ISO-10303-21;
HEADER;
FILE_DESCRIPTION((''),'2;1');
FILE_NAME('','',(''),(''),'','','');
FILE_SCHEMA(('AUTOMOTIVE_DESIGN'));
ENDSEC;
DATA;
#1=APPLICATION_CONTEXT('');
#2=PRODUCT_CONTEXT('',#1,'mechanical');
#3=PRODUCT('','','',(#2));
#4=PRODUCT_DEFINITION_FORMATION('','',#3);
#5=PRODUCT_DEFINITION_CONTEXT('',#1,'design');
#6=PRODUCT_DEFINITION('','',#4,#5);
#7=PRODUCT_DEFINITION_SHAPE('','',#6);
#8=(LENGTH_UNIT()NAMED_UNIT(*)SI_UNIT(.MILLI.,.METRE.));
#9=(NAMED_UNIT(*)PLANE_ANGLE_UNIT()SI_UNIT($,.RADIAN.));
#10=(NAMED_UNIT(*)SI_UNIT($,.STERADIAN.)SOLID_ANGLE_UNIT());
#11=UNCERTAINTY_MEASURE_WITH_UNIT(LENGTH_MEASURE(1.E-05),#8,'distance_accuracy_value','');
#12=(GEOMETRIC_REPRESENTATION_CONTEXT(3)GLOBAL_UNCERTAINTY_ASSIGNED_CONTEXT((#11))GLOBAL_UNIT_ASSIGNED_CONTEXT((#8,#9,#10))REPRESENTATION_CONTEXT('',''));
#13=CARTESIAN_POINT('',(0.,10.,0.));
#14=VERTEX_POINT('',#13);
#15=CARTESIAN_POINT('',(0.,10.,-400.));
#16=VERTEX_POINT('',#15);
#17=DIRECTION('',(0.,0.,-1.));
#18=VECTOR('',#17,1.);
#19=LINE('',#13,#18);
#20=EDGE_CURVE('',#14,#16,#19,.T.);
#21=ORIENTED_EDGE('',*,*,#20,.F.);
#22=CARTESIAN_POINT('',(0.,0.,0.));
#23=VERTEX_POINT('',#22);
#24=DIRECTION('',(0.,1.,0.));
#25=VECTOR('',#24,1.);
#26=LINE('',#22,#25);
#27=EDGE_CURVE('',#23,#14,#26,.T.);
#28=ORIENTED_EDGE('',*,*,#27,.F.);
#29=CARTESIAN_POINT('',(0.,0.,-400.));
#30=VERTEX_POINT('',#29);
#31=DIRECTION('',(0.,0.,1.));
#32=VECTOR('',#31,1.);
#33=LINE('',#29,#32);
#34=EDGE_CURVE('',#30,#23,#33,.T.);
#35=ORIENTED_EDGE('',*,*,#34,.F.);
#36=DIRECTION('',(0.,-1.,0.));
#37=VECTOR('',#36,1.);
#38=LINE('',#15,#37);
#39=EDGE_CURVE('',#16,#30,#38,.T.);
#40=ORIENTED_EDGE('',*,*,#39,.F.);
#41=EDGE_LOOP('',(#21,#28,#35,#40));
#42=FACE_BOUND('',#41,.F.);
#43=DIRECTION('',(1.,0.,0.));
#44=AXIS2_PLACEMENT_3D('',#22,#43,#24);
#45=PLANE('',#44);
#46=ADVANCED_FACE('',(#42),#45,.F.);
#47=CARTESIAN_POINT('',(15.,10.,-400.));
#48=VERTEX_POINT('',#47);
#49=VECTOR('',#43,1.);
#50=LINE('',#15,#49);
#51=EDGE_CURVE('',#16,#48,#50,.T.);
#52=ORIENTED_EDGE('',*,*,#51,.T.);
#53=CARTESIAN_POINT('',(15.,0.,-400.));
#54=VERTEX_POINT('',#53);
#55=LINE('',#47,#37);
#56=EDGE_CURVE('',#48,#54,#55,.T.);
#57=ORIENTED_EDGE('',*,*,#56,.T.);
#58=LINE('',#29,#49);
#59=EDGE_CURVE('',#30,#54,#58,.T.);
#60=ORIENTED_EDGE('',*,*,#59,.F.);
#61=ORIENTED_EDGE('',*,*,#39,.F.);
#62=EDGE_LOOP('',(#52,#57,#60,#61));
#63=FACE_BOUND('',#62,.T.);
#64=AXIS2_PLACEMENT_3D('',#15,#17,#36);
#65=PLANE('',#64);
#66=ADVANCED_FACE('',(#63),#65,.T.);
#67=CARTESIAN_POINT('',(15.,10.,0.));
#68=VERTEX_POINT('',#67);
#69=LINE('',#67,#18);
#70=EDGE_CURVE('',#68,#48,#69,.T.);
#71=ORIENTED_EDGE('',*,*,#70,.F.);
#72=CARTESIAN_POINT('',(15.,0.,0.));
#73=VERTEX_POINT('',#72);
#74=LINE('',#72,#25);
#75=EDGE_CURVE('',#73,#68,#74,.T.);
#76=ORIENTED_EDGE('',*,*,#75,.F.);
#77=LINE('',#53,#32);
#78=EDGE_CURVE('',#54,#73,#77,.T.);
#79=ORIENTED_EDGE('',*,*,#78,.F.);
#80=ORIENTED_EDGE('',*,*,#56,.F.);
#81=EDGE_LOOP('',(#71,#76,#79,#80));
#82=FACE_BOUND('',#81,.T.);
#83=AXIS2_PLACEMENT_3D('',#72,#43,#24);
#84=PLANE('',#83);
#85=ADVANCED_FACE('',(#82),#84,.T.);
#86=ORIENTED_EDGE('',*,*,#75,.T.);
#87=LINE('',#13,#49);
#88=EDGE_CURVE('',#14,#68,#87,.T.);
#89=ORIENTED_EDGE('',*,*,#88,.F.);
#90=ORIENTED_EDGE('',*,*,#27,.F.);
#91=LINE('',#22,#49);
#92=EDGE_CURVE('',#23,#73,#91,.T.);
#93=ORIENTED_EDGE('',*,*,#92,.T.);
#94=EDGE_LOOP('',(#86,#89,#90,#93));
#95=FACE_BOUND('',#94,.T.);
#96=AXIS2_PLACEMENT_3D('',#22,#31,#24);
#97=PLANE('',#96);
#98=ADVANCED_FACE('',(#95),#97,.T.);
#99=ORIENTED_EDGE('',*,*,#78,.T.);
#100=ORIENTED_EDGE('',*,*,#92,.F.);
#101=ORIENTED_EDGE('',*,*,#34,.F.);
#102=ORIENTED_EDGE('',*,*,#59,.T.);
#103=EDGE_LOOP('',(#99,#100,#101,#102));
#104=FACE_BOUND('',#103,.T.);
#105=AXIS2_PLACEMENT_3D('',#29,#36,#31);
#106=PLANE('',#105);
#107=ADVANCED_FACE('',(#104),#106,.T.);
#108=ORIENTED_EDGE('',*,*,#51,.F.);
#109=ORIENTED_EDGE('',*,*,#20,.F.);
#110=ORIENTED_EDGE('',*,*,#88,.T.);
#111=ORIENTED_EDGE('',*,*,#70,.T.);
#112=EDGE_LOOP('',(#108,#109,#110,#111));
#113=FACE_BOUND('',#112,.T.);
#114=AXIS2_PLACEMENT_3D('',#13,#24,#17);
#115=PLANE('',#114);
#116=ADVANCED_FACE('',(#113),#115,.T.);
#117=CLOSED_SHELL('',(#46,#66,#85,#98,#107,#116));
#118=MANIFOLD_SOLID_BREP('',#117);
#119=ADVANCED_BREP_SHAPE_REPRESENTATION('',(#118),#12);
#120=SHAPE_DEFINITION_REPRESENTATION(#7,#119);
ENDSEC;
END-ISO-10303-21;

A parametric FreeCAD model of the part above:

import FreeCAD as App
import Part
import Sketcher

V = App.Vector
Q = App.Units.Quantity

doc = App.newDocument("Part")
body = doc.addObject("PartDesign::Body", "Body")

# Sketch on YZ plane
sketch1 = body.newObject("Sketcher::SketchObject", "Sketch")
sketch1.AttachmentSupport = (doc.getObject("YZ_Plane"), [""])
sketch1.MapMode = "FlatFace"
sketch1.addGeometry([
    Part.LineSegment(V(10, 0, 0), V(0, 0, 0)),
    Part.LineSegment(V(0, 0, 0), V(0, -400, 0)),
    Part.LineSegment(V(0, -400, 0), V(10, -400, 0)),
    Part.LineSegment(V(10, -400, 0), V(10, 0, 0)),
], False)
sketch1.addConstraint([
    Sketcher.Constraint("Coincident", 0, 2, 1, 1),
    Sketcher.Constraint("Coincident", 1, 2, 2, 1),
    Sketcher.Constraint("Coincident", 2, 2, 3, 1),
    Sketcher.Constraint("Coincident", 3, 2, 0, 1),
    Sketcher.Constraint("Horizontal", 0),
    Sketcher.Constraint("Vertical", 1),
    Sketcher.Constraint("Horizontal", 2),
    Sketcher.Constraint("Vertical", 3),
    Sketcher.Constraint("Coincident", 0, 2, -1, 1),
    Sketcher.Constraint("DistanceX", 0, 2, 0, 1, Q("10 mm")),
    Sketcher.Constraint("DistanceY", 1, 2, 1, 1, Q("400 mm")),
])
pad1 = body.newObject("PartDesign::Pad", "Pad")
pad1.Profile = sketch1
pad1.Length = 15

doc.recompute()
